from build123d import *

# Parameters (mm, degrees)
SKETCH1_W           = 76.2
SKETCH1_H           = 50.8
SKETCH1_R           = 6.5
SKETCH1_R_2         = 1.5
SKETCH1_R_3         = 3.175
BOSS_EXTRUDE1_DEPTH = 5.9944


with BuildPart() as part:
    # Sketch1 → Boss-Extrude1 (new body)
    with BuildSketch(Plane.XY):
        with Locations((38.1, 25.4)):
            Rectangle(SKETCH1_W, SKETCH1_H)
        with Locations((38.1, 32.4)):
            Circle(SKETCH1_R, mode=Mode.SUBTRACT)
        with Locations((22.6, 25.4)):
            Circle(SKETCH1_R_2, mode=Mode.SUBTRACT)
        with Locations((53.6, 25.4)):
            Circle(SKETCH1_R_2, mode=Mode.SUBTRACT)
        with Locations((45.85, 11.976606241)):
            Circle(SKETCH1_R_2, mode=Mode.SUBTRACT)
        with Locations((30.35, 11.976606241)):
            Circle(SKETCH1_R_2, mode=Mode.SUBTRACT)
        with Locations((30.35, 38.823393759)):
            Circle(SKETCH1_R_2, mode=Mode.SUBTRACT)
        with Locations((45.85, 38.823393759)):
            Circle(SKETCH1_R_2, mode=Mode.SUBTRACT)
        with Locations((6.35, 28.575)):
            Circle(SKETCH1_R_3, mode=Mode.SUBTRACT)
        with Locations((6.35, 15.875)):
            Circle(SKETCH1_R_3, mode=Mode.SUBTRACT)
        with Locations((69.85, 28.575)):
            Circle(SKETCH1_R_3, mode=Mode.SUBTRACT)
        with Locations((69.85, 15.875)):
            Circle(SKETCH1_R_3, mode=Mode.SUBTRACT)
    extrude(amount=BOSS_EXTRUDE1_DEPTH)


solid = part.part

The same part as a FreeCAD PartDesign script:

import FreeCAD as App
import Part
import Sketcher
from FreeCAD import Vector
Q = App.Units.Quantity

doc = App.newDocument("Part")
params = doc.addObject("Spreadsheet::Sheet", "Params")
for row, (alias, value) in enumerate([
    ("sketch1_diameter", "0.25 in"),
    ("sketch1_width", "3 in"),
    ("sketch1_height", "2 in"),
    ("pad1_length", "0.236 in"),
], start=1):
    params.set(f"A{row}", alias)
    params.set(f"B{row}", "=" + value)
    params.setAlias(f"B{row}", alias)

body = doc.addObject("PartDesign::Body", "Body")

# Sketch on XY plane
sketch1 = doc.addObject("Sketcher::SketchObject", "Sketch")
body.addObject(sketch1)
sketch1.AttachmentSupport = (doc.XY_Plane, [""])
sketch1.MapMode = "FlatFace"
sketch1.addGeometry(Part.LineSegment(Vector(0, 50.8, 0), Vector(0, 0, 0)), False)
sketch1.addGeometry(Part.LineSegment(Vector(0, 0, 0), Vector(76.2, 0, 0)), False)
sketch1.addGeometry(Part.LineSegment(Vector(76.2, 0, 0), Vector(76.2, 50.8, 0)), False)
sketch1.addGeometry(Part.LineSegment(Vector(76.2, 50.8, 0), Vector(0, 50.8, 0)), False)
sketch1.addGeometry(Part.Circle(Vector(6.35, 15.875, 0), Vector(0, 0, 1), 3.175), False)
sketch1.addGeometry(Part.Circle(Vector(30.35, 11.976606, 0), Vector(0, 0, 1), 1.5), False)
sketch1.addGeometry(Part.Circle(Vector(22.6, 25.4, 0), Vector(0, 0, 1), 1.5), False)
sketch1.addGeometry(Part.Circle(Vector(45.85, 11.976606, 0), Vector(0, 0, 1), 1.5), False)
sketch1.addGeometry(Part.Circle(Vector(69.85, 15.875, 0), Vector(0, 0, 1), 3.175), False)
sketch1.addGeometry(Part.Circle(Vector(53.6, 25.4, 0), Vector(0, 0, 1), 1.5), False)
sketch1.addGeometry(Part.Circle(Vector(6.35, 28.575, 0), Vector(0, 0, 1), 3.175), False)
sketch1.addGeometry(Part.Circle(Vector(30.35, 38.823394, 0), Vector(0, 0, 1), 1.5), False)
sketch1.addGeometry(Part.Circle(Vector(38.1, 32.4, 0), Vector(0, 0, 1), 6.5), False)
sketch1.addGeometry(Part.Circle(Vector(69.85, 28.575, 0), Vector(0, 0, 1), 3.175), False)
sketch1.addGeometry(Part.Circle(Vector(45.85, 38.823394, 0), Vector(0, 0, 1), 1.5), False)
sketch1.addConstraint(Sketcher.Constraint("Coincident", 0, 2, 1, 1))
sketch1.addConstraint(Sketcher.Constraint("Coincident", 1, 2, 2, 1))
sketch1.addConstraint(Sketcher.Constraint("Coincident", 2, 2, 3, 1))
sketch1.addConstraint(Sketcher.Constraint("Coincident", 3, 2, 0, 1))
sketch1.addConstraint(Sketcher.Constraint("Vertical", 0))
sketch1.addConstraint(Sketcher.Constraint("Horizontal", 1))
sketch1.addConstraint(Sketcher.Constraint("Vertical", 2))
sketch1.addConstraint(Sketcher.Constraint("Horizontal", 3))
sketch1.addConstraint(Sketcher.Constraint("Coincident", 0, 2, -1, 1))
sketch1.addConstraint(Sketcher.Constraint("Equal", 5, 6))
sketch1.addConstraint(Sketcher.Constraint("Equal", 6, 7))
sketch1.addConstraint(Sketcher.Constraint("Equal", 4, 8))
sketch1.addConstraint(Sketcher.Constraint("Equal", 7, 9))
sketch1.addConstraint(Sketcher.Constraint("Equal", 8, 10))
sketch1.addConstraint(Sketcher.Constraint("Equal", 9, 11))
sketch1.addConstraint(Sketcher.Constraint("Equal", 10, 13))
sketch1.addConstraint(Sketcher.Constraint("Equal", 11, 14))
sketch1.addConstraint(Sketcher.Constraint("Horizontal", 5, 3, 7, 3))
sketch1.addConstraint(Sketcher.Constraint("Horizontal", 4, 3, 8, 3))
sketch1.addConstraint(Sketcher.Constraint("Horizontal", 6, 3, 9, 3))
sketch1.addConstraint(Sketcher.Constraint("Horizontal", 10, 3, 13, 3))
sketch1.addConstraint(Sketcher.Constraint("Horizontal", 11, 3, 14, 3))
sketch1.addConstraint(Sketcher.Constraint("Vertical", 4, 3, 10, 3))
sketch1.addConstraint(Sketcher.Constraint("Vertical", 5, 3, 11, 3))
sketch1.addConstraint(Sketcher.Constraint("Vertical", 8, 3, 13, 3))
sketch1.addConstraint(Sketcher.Constraint("Vertical", 7, 3, 14, 3))
sketch1.addConstraint(Sketcher.Constraint("Diameter", 4, Q("0.25 in")))
sketch1.addConstraint(Sketcher.Constraint("DistanceX", 1, 1, 1, 2, Q("3 in")))
sketch1.addConstraint(Sketcher.Constraint("DistanceY", 0, 2, 0, 1, Q("2 in")))
sketch1.addConstraint(Sketcher.Constraint("DistanceY", -1, 1, 6, 3, Q("1 in")))
sketch1.addConstraint(Sketcher.Constraint("DistanceX", -1, 1, 12, 3, Q("1.5 in")))
sketch1.addConstraint(Sketcher.Constraint("DistanceX", 4, 3, 8, 3, Q("2.5 in")))
sketch1.addConstraint(Sketcher.Constraint("DistanceY", 4, 3, 10, 3, Q("0.5 in")))
sketch1.addConstraint(Sketcher.Constraint("Diameter", 5, Q("3 mm")))
sketch1.addConstraint(Sketcher.Constraint("Diameter", 12, Q("13 mm")))
sketch1.addConstraint(Sketcher.Constraint("DistanceX", -1, 1, 4, 3, Q("0.25 in")))
sketch1.addConstraint(Sketcher.Constraint("DistanceY", -1, 1, 4, 3, Q("0.625 in")))
sketch1.addConstraint(Sketcher.Constraint("DistanceX", -1, 1, 5, 3, Q("30.35 mm")))
sketch1.addConstraint(Sketcher.Constraint("DistanceX", -1, 1, 6, 3, Q("22.6 mm")))
sketch1.addConstraint(Sketcher.Constraint("DistanceX", -1, 1, 7, 3, Q("45.85 mm")))
sketch1.addConstraint(Sketcher.Constraint("DistanceX", -1, 1, 9, 3, Q("53.6 mm")))
sketch1.addConstraint(Sketcher.Constraint("DistanceY", -1, 1, 12, 3, Q("32.4 mm")))
sketch1.addConstraint(Sketcher.Constraint("DistanceY", -1, 1, 5, 3, Q("11.976606 mm")))
sketch1.addConstraint(Sketcher.Constraint("DistanceY", -1, 1, 11, 3, Q("38.823394 mm")))
sketch1.setExpression("Constraints[26]", "Params.sketch1_diameter")
sketch1.setExpression("Constraints[27]", "Params.sketch1_width")
sketch1.setExpression("Constraints[28]", "Params.sketch1_height")
pad1 = doc.addObject("PartDesign::Pad", "Pad")
body.addObject(pad1)
pad1.Profile = sketch1
pad1.setExpression("Length", "Params.pad1_length")

doc.recompute()
